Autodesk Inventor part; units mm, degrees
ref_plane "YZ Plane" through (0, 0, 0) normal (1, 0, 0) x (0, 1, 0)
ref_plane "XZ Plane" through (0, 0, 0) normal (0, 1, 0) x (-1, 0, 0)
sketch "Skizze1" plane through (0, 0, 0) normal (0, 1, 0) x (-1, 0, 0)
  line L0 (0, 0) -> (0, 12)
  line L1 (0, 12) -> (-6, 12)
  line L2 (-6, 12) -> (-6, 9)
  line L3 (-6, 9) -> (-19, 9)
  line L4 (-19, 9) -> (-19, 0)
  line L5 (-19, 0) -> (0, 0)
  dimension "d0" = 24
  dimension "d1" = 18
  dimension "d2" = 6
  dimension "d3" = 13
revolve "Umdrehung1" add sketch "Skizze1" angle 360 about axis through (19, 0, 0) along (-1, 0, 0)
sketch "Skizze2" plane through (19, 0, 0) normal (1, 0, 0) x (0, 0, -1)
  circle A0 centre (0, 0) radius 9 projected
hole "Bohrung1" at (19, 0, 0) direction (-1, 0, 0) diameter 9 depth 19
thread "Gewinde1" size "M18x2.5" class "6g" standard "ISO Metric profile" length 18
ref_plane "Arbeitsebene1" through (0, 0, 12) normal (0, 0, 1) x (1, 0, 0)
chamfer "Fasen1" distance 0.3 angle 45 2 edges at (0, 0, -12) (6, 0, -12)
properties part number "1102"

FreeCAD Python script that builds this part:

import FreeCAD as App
import Part
import Sketcher
from FreeCAD import Vector
Q = App.Units.Quantity


def edges_at(feature, points):
    """Names of the edges that pass closest to the given points."""
    edges = feature.Shape.Edges
    near = lambda p: min(range(len(edges)), key=lambda i: edges[i].distToShape(Part.Vertex(*p))[0])
    return sorted({f"Edge{near(p) + 1}" for p in points})


def add_polygon(sketch, points):
    """Adds a closed chain of lines whose ends are joined by coincident constraints."""
    first, n = sketch.GeometryCount, len(points)
    for a, b in zip(points, points[1:] + points[:1]):
        sketch.addGeometry(Part.LineSegment(App.Vector(*a, 0), App.Vector(*b, 0)), False)
    for i in range(n):
        sketch.addConstraint(Sketcher.Constraint("Coincident", first + i, 2, first + (i + 1) % n, 1))

doc = App.newDocument("Part")
body = doc.addObject("PartDesign::Body", "Body")

sketch1 = body.newObject("Sketcher::SketchObject", "Sketch")
sketch1.AttachmentSupport = (doc.getObject("XZ_Plane"), [""])
sketch1.MapMode = "FlatFace"
add_polygon(sketch1, [(19, 0), (0, 0), (0, 12), (6, 12), (6, 9), (19, 9)])
sketch1.addConstraint(Sketcher.Constraint("Horizontal", 0))
sketch1.addConstraint(Sketcher.Constraint("Vertical", 1))
sketch1.addConstraint(Sketcher.Constraint("Horizontal", 2))
sketch1.addConstraint(Sketcher.Constraint("Vertical", 3))
sketch1.addConstraint(Sketcher.Constraint("Horizontal", 4))
sketch1.addConstraint(Sketcher.Constraint("Vertical", 5))
sketch1.addConstraint(Sketcher.Constraint("Coincident", 0, 2, -1, 1))
sketch1.addConstraint(Sketcher.Constraint("DistanceX", 2, 1, 2, 2, Q("6 mm")))
sketch1.addConstraint(Sketcher.Constraint("DistanceX", 4, 1, 4, 2, Q("13 mm")))
sketch1.addConstraint(Sketcher.Constraint("DistanceY", 1, 1, 1, 2, Q("12 mm")))
sketch1.addConstraint(Sketcher.Constraint("DistanceY", 3, 2, 3, 1, Q("3 mm")))
revolution = body.newObject("PartDesign::Revolution", "Revolution")
revolution.Profile = sketch1
revolution.ReferenceAxis = (sketch1, ["H_Axis"])
revolution.Angle = 360

sketch2 = body.newObject("Sketcher::SketchObject", "Sketch001")
sketch2.AttachmentSupport = (doc.getObject("YZ_Plane"), [""])
sketch2.MapMode = "FlatFace"
sketch2.AttachmentOffset = App.Placement(Vector(0, 0, 19), App.Rotation())
sketch2.addGeometry(Part.Circle(Vector(0, 0, 0), Vector(0, 0, 1), 4.5), False)
sketch2.addConstraint(Sketcher.Constraint("Coincident", 0, 3, -1, 1))
sketch2.addConstraint(Sketcher.Constraint("Diameter", 0, Q("9 mm")))
doc.recompute()
hole = body.newObject("PartDesign::Hole", "Hole")
hole.Profile = sketch2
hole.ThreadType = "None"
hole.Diameter = 9
hole.DepthType = "Dimension"
hole.Depth = 19
hole.DrillPoint = "Flat"
doc.recompute()

chamfer = body.newObject("PartDesign::Chamfer", "Chamfer")
chamfer.Base = (hole, edges_at(hole, [(0, 0, -12), (6, 0, -12)]))
chamfer.Size = 0.3

doc.recompute()
